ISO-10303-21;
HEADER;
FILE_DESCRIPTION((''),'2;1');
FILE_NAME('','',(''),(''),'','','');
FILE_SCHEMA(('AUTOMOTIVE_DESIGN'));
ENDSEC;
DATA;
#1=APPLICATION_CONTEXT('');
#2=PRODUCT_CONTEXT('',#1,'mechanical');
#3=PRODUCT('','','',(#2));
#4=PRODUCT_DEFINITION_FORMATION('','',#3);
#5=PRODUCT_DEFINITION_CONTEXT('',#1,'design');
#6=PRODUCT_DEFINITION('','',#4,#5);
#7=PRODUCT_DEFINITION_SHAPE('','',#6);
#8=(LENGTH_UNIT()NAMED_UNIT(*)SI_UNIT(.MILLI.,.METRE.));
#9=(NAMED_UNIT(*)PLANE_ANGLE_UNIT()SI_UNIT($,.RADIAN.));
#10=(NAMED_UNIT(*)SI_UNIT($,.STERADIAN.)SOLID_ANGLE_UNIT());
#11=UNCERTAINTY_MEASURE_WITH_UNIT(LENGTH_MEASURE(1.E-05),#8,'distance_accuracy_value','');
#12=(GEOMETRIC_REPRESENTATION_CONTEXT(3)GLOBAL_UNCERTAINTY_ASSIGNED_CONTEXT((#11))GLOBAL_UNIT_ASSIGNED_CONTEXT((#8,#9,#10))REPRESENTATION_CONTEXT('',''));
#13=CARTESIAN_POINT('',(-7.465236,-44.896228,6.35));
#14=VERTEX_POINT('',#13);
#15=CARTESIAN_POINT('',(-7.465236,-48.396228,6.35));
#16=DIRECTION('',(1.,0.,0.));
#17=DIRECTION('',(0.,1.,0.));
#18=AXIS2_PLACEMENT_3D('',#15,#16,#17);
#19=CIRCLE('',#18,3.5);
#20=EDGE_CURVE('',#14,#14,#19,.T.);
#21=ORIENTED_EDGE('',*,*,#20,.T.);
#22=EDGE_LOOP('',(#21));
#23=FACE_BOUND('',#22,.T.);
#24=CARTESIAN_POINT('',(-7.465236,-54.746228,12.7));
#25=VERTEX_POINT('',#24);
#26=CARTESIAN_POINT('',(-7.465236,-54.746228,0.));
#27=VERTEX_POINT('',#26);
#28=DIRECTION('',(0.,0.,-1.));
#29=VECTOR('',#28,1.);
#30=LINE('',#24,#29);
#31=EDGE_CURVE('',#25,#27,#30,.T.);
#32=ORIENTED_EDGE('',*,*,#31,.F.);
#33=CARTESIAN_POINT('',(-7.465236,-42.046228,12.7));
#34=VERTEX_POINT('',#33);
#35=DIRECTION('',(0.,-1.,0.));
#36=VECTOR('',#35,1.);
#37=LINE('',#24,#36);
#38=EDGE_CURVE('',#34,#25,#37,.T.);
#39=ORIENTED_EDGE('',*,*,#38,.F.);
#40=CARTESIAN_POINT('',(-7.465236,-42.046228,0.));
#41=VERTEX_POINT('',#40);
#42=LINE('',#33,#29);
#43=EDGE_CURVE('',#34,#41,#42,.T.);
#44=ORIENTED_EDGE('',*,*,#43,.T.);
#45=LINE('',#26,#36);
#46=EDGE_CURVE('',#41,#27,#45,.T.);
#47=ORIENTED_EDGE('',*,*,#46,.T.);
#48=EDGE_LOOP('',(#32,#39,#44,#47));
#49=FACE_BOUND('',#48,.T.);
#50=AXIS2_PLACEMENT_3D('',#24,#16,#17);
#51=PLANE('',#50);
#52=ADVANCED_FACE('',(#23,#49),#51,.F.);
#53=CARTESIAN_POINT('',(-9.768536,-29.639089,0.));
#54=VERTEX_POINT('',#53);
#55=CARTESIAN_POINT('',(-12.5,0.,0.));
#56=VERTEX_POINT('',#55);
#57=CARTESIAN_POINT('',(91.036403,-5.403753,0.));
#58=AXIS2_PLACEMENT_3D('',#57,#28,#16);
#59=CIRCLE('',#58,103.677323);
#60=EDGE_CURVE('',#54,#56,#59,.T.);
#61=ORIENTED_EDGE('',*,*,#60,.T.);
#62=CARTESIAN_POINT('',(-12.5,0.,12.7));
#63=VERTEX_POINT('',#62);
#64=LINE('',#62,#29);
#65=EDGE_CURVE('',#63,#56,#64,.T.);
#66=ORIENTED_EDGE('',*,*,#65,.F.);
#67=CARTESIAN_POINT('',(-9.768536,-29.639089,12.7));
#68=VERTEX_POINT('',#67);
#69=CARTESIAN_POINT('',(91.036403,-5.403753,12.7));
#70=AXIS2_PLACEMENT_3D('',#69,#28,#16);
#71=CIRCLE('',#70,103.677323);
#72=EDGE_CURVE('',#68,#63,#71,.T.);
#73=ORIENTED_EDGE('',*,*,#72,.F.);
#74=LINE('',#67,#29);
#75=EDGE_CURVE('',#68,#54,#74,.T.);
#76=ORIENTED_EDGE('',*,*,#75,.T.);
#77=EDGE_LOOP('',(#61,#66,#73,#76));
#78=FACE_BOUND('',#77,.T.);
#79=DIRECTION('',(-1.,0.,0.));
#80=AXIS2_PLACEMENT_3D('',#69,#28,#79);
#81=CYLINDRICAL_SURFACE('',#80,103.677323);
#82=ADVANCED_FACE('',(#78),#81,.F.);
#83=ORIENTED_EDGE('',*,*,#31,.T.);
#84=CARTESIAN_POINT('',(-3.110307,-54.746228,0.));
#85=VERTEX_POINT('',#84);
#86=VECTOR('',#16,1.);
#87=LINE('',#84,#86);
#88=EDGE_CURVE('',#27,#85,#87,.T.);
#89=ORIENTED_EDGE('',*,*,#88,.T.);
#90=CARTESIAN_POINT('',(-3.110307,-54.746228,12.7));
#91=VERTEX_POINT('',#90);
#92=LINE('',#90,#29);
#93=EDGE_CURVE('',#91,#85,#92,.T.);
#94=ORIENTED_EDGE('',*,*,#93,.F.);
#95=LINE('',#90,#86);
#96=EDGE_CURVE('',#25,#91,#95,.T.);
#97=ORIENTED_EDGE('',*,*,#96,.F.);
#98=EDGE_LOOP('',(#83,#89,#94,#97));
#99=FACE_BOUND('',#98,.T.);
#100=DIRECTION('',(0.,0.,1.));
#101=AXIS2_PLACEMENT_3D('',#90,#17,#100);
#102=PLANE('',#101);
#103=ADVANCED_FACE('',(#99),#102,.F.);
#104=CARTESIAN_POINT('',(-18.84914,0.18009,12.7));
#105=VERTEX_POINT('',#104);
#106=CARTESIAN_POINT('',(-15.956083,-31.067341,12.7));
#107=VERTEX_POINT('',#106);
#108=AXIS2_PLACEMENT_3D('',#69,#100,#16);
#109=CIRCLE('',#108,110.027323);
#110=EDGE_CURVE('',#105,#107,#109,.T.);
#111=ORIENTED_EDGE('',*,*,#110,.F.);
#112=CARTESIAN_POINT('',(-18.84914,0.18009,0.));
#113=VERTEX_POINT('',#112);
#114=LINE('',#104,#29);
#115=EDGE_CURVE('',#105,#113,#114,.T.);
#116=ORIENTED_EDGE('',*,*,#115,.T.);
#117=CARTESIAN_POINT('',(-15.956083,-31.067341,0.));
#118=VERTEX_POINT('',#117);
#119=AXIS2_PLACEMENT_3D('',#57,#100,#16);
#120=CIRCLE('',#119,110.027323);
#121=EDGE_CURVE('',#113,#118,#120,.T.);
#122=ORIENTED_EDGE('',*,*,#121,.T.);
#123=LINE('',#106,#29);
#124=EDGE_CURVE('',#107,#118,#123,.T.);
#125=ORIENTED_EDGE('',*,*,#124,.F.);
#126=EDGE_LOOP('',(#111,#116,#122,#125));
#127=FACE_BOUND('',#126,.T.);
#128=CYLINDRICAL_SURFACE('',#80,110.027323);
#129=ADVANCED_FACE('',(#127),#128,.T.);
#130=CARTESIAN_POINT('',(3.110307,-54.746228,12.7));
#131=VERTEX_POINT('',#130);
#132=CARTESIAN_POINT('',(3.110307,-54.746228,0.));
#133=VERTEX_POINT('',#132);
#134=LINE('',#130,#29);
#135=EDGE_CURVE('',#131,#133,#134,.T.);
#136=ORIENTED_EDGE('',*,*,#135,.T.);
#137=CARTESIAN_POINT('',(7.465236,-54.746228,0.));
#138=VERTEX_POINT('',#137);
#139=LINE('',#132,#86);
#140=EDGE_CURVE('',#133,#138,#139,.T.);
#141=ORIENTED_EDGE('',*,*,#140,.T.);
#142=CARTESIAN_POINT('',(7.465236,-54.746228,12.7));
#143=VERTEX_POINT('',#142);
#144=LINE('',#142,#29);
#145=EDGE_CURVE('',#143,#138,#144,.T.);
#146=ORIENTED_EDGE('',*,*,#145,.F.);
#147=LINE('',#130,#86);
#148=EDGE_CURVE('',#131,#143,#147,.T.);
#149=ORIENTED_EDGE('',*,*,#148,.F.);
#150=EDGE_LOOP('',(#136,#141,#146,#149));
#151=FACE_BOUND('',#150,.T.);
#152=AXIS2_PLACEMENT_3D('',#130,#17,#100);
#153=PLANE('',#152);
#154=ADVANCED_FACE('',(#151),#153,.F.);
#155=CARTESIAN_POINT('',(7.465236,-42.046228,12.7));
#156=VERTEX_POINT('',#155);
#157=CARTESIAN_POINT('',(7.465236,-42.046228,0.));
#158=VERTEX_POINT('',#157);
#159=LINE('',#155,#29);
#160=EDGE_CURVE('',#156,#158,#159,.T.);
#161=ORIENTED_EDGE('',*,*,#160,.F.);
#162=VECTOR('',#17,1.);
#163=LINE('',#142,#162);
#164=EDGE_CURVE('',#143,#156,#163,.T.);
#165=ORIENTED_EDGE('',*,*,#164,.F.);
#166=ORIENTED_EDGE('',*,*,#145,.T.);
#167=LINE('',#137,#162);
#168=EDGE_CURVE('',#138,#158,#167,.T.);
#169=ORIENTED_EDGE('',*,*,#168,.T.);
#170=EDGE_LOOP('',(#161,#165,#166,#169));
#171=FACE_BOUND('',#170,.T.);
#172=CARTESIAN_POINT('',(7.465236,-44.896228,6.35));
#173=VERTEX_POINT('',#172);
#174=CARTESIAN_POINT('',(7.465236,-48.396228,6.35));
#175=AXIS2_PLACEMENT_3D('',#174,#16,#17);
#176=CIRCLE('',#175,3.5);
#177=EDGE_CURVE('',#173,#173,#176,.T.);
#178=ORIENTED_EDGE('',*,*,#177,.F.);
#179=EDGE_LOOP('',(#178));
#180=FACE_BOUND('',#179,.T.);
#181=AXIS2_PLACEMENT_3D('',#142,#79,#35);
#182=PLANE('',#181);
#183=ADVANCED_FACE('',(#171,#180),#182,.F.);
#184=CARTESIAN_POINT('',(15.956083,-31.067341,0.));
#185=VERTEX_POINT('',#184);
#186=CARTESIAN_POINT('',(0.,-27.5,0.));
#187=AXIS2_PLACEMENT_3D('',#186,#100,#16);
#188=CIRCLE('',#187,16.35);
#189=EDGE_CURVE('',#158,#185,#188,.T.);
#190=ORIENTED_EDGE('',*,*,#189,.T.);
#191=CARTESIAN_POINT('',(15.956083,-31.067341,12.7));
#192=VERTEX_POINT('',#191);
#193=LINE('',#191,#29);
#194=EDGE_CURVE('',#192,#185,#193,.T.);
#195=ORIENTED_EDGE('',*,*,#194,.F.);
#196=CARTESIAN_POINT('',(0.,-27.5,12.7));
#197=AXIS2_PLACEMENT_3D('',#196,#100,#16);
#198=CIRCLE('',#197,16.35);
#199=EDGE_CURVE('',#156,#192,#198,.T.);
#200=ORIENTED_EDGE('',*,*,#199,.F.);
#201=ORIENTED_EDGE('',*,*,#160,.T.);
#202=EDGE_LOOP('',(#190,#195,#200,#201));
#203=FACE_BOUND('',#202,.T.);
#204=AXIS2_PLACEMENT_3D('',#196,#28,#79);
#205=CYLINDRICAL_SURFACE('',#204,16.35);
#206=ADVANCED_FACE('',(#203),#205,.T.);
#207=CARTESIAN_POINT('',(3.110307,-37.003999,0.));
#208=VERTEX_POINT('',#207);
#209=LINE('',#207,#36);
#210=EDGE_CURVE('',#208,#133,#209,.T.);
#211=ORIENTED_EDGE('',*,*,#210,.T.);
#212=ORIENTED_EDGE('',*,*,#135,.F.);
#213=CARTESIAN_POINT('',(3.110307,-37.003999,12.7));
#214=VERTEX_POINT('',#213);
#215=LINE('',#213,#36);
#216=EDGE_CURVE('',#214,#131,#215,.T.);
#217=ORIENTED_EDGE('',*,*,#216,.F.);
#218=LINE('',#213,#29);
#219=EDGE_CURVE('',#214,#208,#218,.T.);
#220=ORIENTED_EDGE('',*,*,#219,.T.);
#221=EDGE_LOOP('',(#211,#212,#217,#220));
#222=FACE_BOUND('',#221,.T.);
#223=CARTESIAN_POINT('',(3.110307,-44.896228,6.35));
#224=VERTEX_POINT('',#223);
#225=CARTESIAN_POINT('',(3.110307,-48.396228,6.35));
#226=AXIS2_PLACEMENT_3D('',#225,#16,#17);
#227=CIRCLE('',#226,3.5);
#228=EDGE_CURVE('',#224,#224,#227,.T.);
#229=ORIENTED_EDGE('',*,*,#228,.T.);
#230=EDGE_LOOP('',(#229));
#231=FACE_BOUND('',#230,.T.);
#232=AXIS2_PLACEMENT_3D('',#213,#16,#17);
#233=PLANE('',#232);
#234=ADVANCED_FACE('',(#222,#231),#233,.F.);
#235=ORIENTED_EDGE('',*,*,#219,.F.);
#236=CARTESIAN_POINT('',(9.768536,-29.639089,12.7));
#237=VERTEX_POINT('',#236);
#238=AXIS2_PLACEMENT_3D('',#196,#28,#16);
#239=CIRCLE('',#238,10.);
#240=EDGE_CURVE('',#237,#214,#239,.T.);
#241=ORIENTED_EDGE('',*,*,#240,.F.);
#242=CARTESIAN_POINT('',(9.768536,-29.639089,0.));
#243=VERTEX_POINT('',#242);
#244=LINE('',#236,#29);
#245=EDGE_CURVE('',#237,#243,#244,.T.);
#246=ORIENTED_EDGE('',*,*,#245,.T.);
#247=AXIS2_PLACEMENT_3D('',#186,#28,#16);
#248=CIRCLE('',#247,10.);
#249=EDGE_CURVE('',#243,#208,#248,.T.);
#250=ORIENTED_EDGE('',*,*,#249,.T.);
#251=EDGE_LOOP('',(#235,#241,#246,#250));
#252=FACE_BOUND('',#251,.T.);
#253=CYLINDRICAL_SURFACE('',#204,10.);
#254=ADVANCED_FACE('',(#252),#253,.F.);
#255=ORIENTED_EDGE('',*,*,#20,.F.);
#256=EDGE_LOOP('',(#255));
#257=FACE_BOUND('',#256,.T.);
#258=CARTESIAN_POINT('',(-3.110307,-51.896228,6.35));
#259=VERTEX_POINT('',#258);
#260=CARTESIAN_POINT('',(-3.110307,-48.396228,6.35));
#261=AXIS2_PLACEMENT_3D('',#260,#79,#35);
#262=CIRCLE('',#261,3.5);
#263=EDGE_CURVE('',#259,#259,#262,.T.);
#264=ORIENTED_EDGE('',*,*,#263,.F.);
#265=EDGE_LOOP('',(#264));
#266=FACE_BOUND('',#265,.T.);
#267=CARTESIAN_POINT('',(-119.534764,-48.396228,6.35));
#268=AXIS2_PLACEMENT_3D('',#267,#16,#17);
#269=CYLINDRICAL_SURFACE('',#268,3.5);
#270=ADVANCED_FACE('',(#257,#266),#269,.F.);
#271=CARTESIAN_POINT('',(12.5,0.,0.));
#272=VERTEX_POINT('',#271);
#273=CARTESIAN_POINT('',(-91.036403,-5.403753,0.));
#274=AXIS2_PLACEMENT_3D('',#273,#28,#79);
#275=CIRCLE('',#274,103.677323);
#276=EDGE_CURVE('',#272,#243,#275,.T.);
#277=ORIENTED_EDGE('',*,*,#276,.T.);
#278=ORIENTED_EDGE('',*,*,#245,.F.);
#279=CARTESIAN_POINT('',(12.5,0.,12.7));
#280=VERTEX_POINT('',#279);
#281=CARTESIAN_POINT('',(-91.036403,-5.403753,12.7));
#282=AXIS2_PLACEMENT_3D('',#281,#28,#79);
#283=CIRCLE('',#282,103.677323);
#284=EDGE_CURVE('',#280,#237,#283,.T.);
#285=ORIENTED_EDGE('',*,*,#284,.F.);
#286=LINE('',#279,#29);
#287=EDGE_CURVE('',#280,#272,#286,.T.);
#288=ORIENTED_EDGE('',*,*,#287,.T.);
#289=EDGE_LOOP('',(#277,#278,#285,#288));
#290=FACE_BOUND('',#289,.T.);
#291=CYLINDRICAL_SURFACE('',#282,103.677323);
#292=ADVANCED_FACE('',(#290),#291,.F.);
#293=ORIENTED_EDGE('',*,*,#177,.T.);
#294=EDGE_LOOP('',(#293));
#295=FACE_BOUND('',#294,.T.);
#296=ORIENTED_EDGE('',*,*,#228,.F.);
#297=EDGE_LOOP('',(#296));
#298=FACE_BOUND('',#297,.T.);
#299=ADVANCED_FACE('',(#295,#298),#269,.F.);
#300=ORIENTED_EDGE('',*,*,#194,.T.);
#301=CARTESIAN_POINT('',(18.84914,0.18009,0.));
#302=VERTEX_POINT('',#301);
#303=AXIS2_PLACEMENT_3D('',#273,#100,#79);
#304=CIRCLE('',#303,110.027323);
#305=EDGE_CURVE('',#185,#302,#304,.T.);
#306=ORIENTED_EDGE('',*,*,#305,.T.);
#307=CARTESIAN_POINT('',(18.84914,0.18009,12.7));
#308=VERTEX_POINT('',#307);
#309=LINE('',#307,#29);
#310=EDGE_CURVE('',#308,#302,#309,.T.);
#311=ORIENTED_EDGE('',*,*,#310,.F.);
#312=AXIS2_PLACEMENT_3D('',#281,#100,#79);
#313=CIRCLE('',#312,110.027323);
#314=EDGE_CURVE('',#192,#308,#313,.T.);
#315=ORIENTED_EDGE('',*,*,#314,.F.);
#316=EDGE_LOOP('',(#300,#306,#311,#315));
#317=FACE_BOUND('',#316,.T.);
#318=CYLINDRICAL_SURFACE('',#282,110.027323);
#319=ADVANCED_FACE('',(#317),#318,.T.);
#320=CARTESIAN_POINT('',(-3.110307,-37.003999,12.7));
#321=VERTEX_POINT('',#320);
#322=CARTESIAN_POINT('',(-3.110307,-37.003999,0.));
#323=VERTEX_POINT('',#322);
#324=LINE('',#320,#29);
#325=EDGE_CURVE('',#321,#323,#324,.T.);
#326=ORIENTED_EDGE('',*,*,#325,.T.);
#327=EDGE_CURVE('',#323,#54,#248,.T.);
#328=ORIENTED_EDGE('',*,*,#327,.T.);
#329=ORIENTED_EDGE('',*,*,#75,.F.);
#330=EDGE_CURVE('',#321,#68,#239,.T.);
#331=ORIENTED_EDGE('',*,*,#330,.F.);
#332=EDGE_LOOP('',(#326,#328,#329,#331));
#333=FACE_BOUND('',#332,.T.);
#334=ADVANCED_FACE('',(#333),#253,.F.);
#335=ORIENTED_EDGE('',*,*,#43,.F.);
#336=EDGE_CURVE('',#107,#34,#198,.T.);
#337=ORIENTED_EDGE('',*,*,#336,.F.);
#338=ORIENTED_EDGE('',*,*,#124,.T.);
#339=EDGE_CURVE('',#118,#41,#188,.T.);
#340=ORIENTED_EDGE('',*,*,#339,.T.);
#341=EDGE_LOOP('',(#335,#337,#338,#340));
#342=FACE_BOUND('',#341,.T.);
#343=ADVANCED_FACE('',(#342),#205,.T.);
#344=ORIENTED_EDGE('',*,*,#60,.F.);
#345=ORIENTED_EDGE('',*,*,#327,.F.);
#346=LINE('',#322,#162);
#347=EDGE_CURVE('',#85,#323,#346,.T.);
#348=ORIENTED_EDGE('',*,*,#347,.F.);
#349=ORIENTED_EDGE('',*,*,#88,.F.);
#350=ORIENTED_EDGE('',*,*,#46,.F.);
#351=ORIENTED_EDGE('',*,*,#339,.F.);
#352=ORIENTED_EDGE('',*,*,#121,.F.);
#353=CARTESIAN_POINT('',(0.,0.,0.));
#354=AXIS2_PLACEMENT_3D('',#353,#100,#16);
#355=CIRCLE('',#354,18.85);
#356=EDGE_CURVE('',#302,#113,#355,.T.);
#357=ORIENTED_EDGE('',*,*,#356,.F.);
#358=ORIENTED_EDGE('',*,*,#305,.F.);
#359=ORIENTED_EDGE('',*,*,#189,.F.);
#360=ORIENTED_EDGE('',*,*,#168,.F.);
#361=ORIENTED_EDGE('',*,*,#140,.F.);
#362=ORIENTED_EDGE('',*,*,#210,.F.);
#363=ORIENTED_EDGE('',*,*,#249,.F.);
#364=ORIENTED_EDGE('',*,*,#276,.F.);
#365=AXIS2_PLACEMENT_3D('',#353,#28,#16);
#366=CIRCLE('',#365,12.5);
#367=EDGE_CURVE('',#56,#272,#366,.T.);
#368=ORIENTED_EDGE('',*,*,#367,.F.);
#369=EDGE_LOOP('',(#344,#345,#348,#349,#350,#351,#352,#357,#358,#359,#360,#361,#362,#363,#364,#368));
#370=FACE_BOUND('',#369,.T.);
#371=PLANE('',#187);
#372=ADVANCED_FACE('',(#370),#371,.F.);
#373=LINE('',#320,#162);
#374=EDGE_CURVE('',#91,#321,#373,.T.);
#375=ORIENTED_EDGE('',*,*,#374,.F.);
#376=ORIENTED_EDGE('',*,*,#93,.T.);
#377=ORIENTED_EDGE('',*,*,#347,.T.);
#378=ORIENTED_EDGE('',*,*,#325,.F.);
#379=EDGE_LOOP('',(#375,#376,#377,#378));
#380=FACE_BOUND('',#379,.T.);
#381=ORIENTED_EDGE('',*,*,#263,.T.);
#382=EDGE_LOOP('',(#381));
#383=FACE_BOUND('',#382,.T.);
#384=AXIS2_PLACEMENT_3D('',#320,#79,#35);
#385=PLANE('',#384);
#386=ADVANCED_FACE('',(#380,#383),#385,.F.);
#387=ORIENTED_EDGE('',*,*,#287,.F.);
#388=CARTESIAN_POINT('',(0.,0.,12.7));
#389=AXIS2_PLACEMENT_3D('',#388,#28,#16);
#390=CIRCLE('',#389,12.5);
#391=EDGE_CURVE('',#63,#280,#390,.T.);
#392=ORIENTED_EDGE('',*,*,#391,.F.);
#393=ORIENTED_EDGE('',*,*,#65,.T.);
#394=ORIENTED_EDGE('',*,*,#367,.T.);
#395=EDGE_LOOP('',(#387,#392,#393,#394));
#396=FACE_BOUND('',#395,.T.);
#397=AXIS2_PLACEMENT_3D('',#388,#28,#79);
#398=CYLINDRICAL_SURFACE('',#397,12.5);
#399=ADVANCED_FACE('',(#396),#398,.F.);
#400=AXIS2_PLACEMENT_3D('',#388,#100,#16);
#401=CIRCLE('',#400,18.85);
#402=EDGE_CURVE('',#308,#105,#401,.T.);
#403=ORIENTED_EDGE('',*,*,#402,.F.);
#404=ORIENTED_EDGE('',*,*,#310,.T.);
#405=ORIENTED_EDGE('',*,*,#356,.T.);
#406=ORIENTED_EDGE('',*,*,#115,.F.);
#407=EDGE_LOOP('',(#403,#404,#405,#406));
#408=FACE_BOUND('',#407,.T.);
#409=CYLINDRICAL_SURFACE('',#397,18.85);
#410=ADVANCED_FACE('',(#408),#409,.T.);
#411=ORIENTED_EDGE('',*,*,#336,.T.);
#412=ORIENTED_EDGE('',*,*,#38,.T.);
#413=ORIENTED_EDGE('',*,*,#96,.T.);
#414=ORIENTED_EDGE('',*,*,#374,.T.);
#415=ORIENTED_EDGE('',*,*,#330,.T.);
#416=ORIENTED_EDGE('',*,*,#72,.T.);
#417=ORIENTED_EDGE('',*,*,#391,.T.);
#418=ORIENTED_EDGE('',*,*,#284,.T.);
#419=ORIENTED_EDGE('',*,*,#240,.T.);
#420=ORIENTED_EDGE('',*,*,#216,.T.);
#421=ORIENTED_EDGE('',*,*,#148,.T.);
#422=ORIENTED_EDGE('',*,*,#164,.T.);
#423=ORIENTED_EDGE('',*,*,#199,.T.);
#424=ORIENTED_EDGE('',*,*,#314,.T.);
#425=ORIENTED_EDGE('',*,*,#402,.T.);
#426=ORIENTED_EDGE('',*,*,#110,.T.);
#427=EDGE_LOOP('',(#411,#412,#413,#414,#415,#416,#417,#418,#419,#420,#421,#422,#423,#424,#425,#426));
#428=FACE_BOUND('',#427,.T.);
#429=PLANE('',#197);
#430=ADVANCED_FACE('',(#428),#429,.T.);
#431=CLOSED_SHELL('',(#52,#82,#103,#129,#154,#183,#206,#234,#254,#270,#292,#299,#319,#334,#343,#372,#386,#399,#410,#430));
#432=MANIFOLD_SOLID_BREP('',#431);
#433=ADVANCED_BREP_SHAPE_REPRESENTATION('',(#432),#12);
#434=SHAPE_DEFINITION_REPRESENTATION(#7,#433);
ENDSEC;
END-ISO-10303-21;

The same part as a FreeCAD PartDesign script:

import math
import FreeCAD as App
import Part
import Sketcher
from FreeCAD import Vector

doc = App.newDocument("Part")
body = doc.addObject("PartDesign::Body", "Body")

# Sketch on XY plane
sketch1 = body.newObject("Sketcher::SketchObject", "Sketch")
sketch1.AttachmentSupport = (doc.getObject("XY_Plane"), [""])
sketch1.MapMode = "FlatFace"
sketch1.addGeometry([
    Part.LineSegment(Vector(-3.1, -54.7, 0), Vector(-3.1, -37, 0)),  # 0
    Part.ArcOfCircle(Part.Circle(Vector(0, -27.5, 0), Vector(0, 0, 1), 10), math.radians(-168), math.radians(-108)),  # 1
    Part.ArcOfCircle(Part.Circle(Vector(91, -5.4, 0), Vector(0, 0, 1), 103.7), math.radians(177.01), math.radians(193.52)),  # 2
    Part.ArcOfCircle(Part.Circle(Vector(0, 0, 0), Vector(0, 0, 1), 12.5), math.radians(0), math.radians(180)),  # 3
    Part.ArcOfCircle(Part.Circle(Vector(-91, -5.4, 0), Vector(0, 0, 1), 103.7), math.radians(-13.52), math.radians(2.99)),  # 4
    Part.ArcOfCircle(Part.Circle(Vector(0, -27.5, 0), Vector(0, 0, 1), 10), math.radians(-72), math.radians(-12)),  # 5
    Part.LineSegment(Vector(3.1, -37, 0), Vector(3.1, -54.7, 0)),  # 6
    Part.LineSegment(Vector(3.1, -54.7, 0), Vector(7.5, -54.7, 0)),  # 7
    Part.LineSegment(Vector(7.5, -54.7, 0), Vector(7.5, -42, 0)),  # 8
    Part.ArcOfCircle(Part.Circle(Vector(0, -27.5, 0), Vector(0, 0, 1), 16.4), math.radians(-63), math.radians(-13)),  # 9
    Part.ArcOfCircle(Part.Circle(Vector(-91, -5.4, 0), Vector(0, 0, 1), 110), math.radians(-13.49), math.radians(2.91)),  # 10
    Part.ArcOfCircle(Part.Circle(Vector(0, 0, 0), Vector(0, 0, 1), 18.9), math.radians(1), math.radians(179)),  # 11
    Part.ArcOfCircle(Part.Circle(Vector(91, -5.4, 0), Vector(0, 0, 1), 110), math.radians(177.09), math.radians(193.49)),  # 12
    Part.ArcOfCircle(Part.Circle(Vector(0, -27.5, 0), Vector(0, 0, 1), 16.4), math.radians(-167), math.radians(-117)),  # 13
    Part.LineSegment(Vector(-7.5, -42, 0), Vector(-7.5, -54.7, 0)),  # 14
    Part.LineSegment(Vector(-7.5, -54.7, 0), Vector(-3.1, -54.7, 0)),  # 15
], False)
sketch1.addConstraint([
    Sketcher.Constraint("Coincident", 0, 2, 1, 2),
    Sketcher.Constraint("Coincident", 1, 1, 2, 2),
    Sketcher.Constraint("Coincident", 2, 1, 3, 2),
    Sketcher.Constraint("Coincident", 3, 1, 4, 2),
    Sketcher.Constraint("Coincident", 4, 1, 5, 2),
    Sketcher.Constraint("Coincident", 5, 1, 6, 1),
    Sketcher.Constraint("Coincident", 6, 2, 7, 1),
    Sketcher.Constraint("Coincident", 7, 2, 8, 1),
    Sketcher.Constraint("Coincident", 8, 2, 9, 1),
    Sketcher.Constraint("Coincident", 9, 2, 10, 1),
    Sketcher.Constraint("Coincident", 10, 2, 11, 1),
    Sketcher.Constraint("Coincident", 11, 2, 12, 1),
    Sketcher.Constraint("Coincident", 12, 2, 13, 1),
    Sketcher.Constraint("Coincident", 13, 2, 14, 1),
    Sketcher.Constraint("Coincident", 14, 2, 15, 1),
    Sketcher.Constraint("Coincident", 15, 2, 0, 1),
    Sketcher.Constraint("Vertical", 0),
    Sketcher.Constraint("Vertical", 6),
    Sketcher.Constraint("Horizontal", 7),
    Sketcher.Constraint("Vertical", 8),
    Sketcher.Constraint("Vertical", 14),
    Sketcher.Constraint("Horizontal", 15),
    Sketcher.Constraint("Coincident", 3, 3, -1, 1),
    Sketcher.Constraint("Coincident", 11, 3, -1, 1),
    Sketcher.Constraint("Coincident", 5, 3, 1, 3),
    Sketcher.Constraint("Coincident", 9, 3, 1, 3),
    Sketcher.Constraint("Coincident", 10, 3, 4, 3),
    Sketcher.Constraint("Coincident", 12, 3, 2, 3),
    Sketcher.Constraint("Coincident", 13, 3, 1, 3),
    Sketcher.Constraint("Equal", 2, 4),
    Sketcher.Constraint("Equal", 1, 5),
    Sketcher.Constraint("Equal", 10, 12),
    Sketcher.Constraint("Equal", 9, 13),
    Sketcher.Constraint("Symmetric", 2, 3, 4, 3, -2),
    Sketcher.Constraint("Symmetric", 0, 2, 5, 1, -2),
    Sketcher.Constraint("Symmetric", 7, 2, 14, 2, -2),
    Sketcher.Constraint("PointOnObject", 2, 1, -1),
    Sketcher.Constraint("Radius", 1, 10.0),
    Sketcher.Constraint("Radius", 3, 12.5),
    Sketcher.Constraint("Radius", 9, 16.35),
    Sketcher.Constraint("Radius", 11, 18.85),
    Sketcher.Constraint("DistanceY", 8, 1, 8, 2, 12.7),
    Sketcher.Constraint("DistanceY", 1, 3, -1, 1, 27.5),
    Sketcher.Constraint("DistanceY", 0, 2, -1, 1, 37.003999),
    Sketcher.Constraint("Radius", 2, 103.677323),
    Sketcher.Constraint("Radius", 10, 110.027323),
    Sketcher.Constraint("DistanceX", 7, 1, 7, 2, 4.354929),
    Sketcher.Constraint("DistanceX", 7, 2, 4, 1, 2.3033),
])
pad1 = body.newObject("PartDesign::Pad", "Pad")
pad1.Profile = sketch1
pad1.Length = 12.7

# Sketch on YZ plane
sketch2 = body.newObject("Sketcher::SketchObject", "Sketch001")
sketch2.AttachmentSupport = (doc.getObject("YZ_Plane"), [""])
sketch2.MapMode = "FlatFace"
sketch2.AttachmentOffset = App.Placement(Vector(0, 0, 7.465236), App.Rotation())
sketch2.addGeometry(Part.Circle(Vector(-48.4, 6.3, 0), Vector(0, 0, 1), 3.5), False)
sketch2.addConstraint([
    Sketcher.Constraint("Diameter", 0, 7.0),
    Sketcher.Constraint("DistanceY", -1, 1, 0, 3, 6.35),
    Sketcher.Constraint("DistanceX", 0, 3, -1, 1, 48.396228),
])
pocket1 = body.newObject("PartDesign::Pocket", "Pocket")
pocket1.Profile = sketch2
pocket1.Length = 127

doc.recompute()
